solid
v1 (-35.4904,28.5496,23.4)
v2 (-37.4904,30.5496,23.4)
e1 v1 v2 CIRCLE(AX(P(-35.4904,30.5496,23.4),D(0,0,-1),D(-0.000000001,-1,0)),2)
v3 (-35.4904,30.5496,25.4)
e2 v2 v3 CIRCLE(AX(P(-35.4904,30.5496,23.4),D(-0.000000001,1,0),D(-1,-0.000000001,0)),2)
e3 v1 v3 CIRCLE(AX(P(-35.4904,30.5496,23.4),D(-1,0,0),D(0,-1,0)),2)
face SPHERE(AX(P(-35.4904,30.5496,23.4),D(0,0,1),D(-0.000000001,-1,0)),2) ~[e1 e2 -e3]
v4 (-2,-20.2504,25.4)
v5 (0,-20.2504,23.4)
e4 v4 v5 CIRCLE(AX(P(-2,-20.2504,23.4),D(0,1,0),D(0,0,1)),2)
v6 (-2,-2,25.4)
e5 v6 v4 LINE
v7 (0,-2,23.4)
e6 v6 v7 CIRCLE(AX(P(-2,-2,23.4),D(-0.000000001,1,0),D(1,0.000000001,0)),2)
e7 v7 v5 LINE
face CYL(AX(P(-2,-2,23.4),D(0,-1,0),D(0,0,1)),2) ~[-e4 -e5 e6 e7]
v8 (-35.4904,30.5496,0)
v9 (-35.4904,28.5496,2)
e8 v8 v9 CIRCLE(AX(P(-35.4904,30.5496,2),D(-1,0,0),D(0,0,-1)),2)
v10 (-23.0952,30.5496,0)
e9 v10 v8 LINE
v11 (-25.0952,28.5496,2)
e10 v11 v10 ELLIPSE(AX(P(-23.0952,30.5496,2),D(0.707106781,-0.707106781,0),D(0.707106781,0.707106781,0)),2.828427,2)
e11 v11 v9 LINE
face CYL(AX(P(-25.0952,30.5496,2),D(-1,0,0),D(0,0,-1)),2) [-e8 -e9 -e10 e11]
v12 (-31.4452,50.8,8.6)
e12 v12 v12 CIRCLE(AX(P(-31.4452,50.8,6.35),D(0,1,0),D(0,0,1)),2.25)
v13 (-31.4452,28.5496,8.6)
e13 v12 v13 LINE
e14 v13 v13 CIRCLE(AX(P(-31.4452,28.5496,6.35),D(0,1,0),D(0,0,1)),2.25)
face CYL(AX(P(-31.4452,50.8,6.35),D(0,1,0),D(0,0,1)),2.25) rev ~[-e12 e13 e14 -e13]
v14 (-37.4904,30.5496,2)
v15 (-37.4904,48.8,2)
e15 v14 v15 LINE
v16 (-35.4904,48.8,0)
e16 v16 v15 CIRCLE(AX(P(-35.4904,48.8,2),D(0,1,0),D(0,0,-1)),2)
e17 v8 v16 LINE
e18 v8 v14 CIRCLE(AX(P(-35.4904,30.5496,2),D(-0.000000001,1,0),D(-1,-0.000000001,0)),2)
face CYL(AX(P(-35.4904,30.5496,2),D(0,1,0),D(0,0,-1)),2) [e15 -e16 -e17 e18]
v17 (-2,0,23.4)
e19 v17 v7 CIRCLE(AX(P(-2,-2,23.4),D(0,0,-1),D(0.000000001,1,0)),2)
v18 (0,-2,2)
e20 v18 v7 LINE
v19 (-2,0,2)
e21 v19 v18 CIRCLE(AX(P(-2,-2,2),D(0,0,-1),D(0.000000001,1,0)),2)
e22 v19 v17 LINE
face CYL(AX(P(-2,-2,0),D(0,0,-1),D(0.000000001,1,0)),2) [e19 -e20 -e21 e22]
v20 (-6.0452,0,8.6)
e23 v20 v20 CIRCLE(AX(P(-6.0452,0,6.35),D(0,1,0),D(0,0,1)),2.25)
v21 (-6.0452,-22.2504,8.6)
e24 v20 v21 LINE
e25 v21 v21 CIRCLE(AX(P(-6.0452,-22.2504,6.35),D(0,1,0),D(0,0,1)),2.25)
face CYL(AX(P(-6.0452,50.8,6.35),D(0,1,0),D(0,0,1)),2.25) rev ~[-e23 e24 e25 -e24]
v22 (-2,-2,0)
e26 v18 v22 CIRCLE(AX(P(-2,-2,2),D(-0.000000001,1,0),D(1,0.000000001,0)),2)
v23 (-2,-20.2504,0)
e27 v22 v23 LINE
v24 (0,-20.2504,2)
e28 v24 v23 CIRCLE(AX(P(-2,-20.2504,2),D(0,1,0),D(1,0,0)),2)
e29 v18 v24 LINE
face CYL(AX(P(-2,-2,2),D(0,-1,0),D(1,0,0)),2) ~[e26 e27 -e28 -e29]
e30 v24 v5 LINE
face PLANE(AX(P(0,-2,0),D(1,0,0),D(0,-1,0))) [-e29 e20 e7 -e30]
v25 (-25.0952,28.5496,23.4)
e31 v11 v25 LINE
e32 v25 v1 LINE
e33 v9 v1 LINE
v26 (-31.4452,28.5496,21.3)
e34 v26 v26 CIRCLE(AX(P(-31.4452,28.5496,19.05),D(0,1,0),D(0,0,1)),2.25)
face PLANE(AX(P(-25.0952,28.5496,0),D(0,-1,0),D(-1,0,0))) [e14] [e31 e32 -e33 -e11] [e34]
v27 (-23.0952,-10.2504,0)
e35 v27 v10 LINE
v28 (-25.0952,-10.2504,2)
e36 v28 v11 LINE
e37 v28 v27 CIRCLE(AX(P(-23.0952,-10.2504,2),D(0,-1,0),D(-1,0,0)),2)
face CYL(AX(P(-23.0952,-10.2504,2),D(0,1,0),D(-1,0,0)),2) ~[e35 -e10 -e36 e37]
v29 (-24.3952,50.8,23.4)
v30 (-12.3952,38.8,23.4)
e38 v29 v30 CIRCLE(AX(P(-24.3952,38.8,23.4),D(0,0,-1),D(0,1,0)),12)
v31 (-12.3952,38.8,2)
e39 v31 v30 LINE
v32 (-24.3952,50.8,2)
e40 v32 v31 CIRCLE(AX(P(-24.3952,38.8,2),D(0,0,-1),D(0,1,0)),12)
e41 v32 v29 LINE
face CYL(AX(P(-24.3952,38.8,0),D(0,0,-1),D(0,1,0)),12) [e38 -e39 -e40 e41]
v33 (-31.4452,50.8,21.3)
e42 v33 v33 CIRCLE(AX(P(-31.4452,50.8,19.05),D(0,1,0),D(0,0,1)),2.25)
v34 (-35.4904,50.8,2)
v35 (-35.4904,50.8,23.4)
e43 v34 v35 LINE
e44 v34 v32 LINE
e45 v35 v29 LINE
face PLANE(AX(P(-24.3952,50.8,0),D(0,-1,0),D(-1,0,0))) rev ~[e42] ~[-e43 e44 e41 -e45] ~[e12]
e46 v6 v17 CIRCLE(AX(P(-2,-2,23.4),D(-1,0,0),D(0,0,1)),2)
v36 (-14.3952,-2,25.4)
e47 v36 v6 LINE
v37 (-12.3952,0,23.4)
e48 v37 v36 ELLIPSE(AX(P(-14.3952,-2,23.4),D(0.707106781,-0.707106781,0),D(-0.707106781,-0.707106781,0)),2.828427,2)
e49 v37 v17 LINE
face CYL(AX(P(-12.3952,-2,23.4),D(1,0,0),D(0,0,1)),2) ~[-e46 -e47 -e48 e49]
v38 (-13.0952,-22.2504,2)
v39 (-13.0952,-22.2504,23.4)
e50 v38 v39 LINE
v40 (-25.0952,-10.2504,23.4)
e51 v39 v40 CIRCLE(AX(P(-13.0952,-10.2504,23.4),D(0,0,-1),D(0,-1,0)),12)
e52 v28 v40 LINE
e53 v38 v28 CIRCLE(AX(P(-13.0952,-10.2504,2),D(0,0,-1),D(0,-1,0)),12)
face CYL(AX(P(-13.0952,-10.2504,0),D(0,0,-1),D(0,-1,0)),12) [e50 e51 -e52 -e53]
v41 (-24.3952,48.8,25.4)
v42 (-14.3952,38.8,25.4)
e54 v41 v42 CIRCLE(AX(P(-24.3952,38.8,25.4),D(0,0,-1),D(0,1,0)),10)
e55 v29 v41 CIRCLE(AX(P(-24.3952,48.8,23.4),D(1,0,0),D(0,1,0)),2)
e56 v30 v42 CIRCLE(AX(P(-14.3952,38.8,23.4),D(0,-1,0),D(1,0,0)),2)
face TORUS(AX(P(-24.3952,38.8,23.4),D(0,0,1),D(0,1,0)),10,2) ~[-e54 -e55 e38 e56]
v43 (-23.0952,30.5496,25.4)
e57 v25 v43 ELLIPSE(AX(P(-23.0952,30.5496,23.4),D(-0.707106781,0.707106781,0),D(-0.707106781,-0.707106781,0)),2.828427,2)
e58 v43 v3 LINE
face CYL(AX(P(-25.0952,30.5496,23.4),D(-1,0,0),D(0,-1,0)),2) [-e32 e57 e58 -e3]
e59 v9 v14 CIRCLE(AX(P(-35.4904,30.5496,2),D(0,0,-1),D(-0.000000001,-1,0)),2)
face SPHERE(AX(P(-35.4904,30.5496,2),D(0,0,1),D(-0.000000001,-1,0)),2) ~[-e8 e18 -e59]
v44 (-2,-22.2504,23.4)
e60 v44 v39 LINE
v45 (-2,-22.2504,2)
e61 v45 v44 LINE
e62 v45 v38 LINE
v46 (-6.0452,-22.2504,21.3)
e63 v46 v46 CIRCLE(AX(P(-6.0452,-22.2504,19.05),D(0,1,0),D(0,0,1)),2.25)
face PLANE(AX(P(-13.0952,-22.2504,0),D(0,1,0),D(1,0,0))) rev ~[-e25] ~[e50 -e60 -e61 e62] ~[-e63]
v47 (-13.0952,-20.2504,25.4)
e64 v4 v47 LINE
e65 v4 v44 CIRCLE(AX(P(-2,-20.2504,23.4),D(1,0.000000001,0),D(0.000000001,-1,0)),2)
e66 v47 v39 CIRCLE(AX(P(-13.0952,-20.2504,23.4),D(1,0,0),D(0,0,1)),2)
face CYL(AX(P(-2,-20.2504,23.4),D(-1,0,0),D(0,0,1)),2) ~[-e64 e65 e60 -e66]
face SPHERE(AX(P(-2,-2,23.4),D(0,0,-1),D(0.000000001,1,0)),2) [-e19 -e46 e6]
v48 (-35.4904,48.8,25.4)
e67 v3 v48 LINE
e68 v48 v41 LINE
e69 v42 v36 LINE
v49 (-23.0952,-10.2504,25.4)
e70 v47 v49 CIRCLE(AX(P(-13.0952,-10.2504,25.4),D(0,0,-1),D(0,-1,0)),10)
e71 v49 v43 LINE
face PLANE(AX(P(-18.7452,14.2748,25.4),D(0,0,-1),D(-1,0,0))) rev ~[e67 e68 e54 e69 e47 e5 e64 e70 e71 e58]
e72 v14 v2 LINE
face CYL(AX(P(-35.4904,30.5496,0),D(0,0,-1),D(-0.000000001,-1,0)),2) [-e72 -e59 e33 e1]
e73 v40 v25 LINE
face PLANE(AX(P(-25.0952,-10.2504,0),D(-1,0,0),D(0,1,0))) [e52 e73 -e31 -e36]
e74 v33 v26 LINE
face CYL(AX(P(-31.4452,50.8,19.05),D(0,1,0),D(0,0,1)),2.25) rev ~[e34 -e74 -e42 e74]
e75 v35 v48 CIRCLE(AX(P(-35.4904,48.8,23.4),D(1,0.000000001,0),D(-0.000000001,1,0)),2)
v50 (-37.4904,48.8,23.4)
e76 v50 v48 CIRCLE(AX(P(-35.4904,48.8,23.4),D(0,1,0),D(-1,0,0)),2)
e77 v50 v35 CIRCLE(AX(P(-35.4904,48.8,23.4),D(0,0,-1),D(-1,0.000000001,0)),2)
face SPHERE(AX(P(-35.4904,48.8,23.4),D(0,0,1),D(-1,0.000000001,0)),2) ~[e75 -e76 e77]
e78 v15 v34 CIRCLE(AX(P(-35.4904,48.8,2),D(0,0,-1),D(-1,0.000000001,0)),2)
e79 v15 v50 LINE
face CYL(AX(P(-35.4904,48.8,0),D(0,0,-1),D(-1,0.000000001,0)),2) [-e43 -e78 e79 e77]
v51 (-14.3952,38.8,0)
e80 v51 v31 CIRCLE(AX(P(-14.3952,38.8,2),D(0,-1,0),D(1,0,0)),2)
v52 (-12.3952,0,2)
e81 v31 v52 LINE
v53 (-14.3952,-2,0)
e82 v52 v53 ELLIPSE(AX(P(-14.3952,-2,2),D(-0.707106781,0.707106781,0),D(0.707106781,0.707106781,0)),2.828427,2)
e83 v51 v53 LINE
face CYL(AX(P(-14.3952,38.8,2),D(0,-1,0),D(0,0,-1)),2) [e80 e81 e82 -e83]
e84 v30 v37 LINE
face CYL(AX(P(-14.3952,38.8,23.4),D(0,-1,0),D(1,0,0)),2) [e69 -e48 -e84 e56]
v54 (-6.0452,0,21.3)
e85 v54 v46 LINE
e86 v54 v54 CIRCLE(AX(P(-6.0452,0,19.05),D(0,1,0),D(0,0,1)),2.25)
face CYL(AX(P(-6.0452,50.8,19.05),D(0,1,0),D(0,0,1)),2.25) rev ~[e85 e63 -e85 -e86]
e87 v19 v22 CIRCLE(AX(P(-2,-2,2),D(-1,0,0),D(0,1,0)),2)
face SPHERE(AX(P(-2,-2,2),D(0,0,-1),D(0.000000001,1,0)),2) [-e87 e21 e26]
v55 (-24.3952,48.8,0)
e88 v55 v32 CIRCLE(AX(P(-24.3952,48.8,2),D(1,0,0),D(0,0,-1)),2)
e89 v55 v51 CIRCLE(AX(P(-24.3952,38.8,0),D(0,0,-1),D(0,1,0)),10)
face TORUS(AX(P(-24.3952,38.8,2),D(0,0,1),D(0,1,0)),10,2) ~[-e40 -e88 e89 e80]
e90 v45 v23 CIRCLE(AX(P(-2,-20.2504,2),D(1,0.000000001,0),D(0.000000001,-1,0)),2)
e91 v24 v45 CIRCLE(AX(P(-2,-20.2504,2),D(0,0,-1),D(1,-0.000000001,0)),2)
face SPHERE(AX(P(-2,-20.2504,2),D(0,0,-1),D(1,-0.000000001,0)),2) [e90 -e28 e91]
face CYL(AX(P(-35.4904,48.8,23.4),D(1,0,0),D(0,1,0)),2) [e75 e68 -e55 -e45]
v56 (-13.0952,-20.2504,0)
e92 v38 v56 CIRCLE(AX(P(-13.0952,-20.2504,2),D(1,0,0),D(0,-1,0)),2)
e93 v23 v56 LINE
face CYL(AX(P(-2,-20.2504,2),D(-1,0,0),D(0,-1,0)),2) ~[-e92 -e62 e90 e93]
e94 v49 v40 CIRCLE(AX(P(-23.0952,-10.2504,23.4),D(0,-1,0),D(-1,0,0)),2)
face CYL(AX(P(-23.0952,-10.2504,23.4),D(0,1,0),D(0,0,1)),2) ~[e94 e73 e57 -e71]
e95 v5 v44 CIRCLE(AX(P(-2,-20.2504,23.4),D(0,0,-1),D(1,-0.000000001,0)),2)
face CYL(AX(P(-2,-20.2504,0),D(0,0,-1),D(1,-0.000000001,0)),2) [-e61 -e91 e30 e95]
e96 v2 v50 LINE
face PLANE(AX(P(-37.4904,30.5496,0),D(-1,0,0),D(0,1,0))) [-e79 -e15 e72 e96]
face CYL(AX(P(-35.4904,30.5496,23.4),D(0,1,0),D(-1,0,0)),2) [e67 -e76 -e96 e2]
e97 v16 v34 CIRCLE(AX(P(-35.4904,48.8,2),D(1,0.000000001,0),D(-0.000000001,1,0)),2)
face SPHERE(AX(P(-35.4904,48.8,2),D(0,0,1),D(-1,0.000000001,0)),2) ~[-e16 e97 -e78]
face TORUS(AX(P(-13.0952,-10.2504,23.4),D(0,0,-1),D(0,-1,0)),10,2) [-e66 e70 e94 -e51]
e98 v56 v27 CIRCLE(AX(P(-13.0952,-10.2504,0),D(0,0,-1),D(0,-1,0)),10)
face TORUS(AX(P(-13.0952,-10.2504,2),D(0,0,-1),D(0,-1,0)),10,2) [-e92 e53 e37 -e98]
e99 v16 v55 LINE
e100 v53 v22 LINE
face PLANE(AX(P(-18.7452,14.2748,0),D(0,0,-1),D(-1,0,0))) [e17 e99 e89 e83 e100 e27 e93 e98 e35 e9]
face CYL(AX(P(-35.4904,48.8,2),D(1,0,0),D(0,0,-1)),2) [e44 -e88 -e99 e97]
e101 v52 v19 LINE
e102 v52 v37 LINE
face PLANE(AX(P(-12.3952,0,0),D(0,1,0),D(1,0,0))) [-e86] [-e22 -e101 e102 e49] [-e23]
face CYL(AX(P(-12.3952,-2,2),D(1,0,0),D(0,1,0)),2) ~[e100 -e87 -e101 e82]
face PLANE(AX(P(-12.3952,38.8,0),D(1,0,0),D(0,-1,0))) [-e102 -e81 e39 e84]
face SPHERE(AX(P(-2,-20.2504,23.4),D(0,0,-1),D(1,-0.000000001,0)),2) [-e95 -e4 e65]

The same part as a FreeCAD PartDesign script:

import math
import FreeCAD as App
import Part
import Sketcher

V = App.Vector


def edges_at(feature, points):
    """Names of the edges that pass closest to the given points."""
    edges = feature.Shape.Edges
    near = lambda p: min(range(len(edges)), key=lambda i: edges[i].distToShape(Part.Vertex(*p))[0])
    return sorted({f"Edge{near(p) + 1}" for p in points})

doc = App.newDocument("Part")
body = doc.addObject("PartDesign::Body", "Body")

sketch1 = body.newObject("Sketcher::SketchObject", "Sketch")
sketch1.AttachmentSupport = (doc.getObject("XY_Plane"), [""])
sketch1.MapMode = "FlatFace"
sketch1.addGeometry([
    Part.LineSegment(V(-12.4, 0, 0), V(-12.4, 38.8, 0)),
    Part.ArcOfCircle(Part.Circle(V(-24.4, 38.8, 0), V(0, 0, 1), 12), math.radians(0), math.radians(90)),
    Part.LineSegment(V(-24.4, 50.8, 0), V(-35.5, 50.8, 0)),
    Part.ArcOfCircle(Part.Circle(V(-35.5, 48.8, 0), V(0, 0, 1), 2), math.radians(90), math.radians(180)),
    Part.LineSegment(V(-37.5, 48.8, 0), V(-37.5, 30.5, 0)),
    Part.ArcOfCircle(Part.Circle(V(-35.5, 30.5, 0), V(0, 0, 1), 2), math.radians(-180), math.radians(-90)),
    Part.LineSegment(V(-35.5, 28.5, 0), V(-25.1, 28.5, 0)),
    Part.LineSegment(V(-25.1, 28.5, 0), V(-25.1, -10.3, 0)),
    Part.ArcOfCircle(Part.Circle(V(-13.1, -10.3, 0), V(0, 0, 1), 12), math.radians(-180), math.radians(-90)),
    Part.LineSegment(V(-13.1, -22.3, 0), V(-2, -22.3, 0)),
    Part.ArcOfCircle(Part.Circle(V(-2, -20.3, 0), V(0, 0, 1), 2), math.radians(-90), math.radians(0)),
    Part.LineSegment(V(0, -20.3, 0), V(0, -2, 0)),
    Part.ArcOfCircle(Part.Circle(V(-2, -2, 0), V(0, 0, 1), 2), math.radians(0), math.radians(90)),
    Part.LineSegment(V(-2, 0, 0), V(-12.4, 0, 0)),
], False)
sketch1.addConstraint([
    Sketcher.Constraint("Tangent", 0, 2, 1, 1),
    Sketcher.Constraint("Tangent", 1, 2, 2, 1),
    Sketcher.Constraint("Tangent", 2, 2, 3, 1),
    Sketcher.Constraint("Tangent", 3, 2, 4, 1),
    Sketcher.Constraint("Tangent", 4, 2, 5, 1),
    Sketcher.Constraint("Tangent", 5, 2, 6, 1),
    Sketcher.Constraint("Coincident", 6, 2, 7, 1),
    Sketcher.Constraint("Tangent", 7, 2, 8, 1),
    Sketcher.Constraint("Tangent", 8, 2, 9, 1),
    Sketcher.Constraint("Tangent", 9, 2, 10, 1),
    Sketcher.Constraint("Tangent", 10, 2, 11, 1),
    Sketcher.Constraint("Tangent", 11, 2, 12, 1),
    Sketcher.Constraint("Tangent", 12, 2, 13, 1),
    Sketcher.Constraint("Coincident", 13, 2, 0, 1),
    Sketcher.Constraint("Vertical", 0),
    Sketcher.Constraint("Horizontal", 2),
    Sketcher.Constraint("Vertical", 4),
    Sketcher.Constraint("Horizontal", 6),
    Sketcher.Constraint("Vertical", 7),
    Sketcher.Constraint("Horizontal", 9),
    Sketcher.Constraint("Vertical", 11),
    Sketcher.Constraint("Horizontal", 13),
    Sketcher.Constraint("Equal", 3, 5),
    Sketcher.Constraint("Equal", 1, 8),
    Sketcher.Constraint("Equal", 5, 10),
    Sketcher.Constraint("Equal", 10, 12),
    Sketcher.Constraint("PointOnObject", 10, 2, -2),
    Sketcher.Constraint("PointOnObject", 12, 2, -1),
    Sketcher.Constraint("Equal", 2, 9),
    Sketcher.Constraint("Equal", 0, 7),
    Sketcher.Constraint("Radius", 1, 12.0),
    Sketcher.Constraint("Radius", 3, 2.0),
    Sketcher.Constraint("DistanceY", 0, 1, 0, 2, 38.8),
    Sketcher.Constraint("DistanceX", 1, 3, 8, 3, 11.3),
    Sketcher.Constraint("DistanceX", 2, 2, 2, 1, 11.0952),
    Sketcher.Constraint("DistanceY", 4, 2, 4, 1, 18.2504),
])
pad1 = body.newObject("PartDesign::Pad", "Pad")
pad1.Profile = sketch1
pad1.Length = 25.4

sketch2 = body.newObject("Sketcher::SketchObject", "Sketch001")
sketch2.AttachmentSupport = (doc.getObject("XZ_Plane"), [""])
sketch2.MapMode = "FlatFace"
sketch2.AttachmentOffset = App.Placement(V(0, 0, -50.8), App.Rotation())
sketch2.addGeometry([
    Part.Circle(V(-31.4, 6.3, 0), V(0, 0, 1), 2.2),
    Part.Circle(V(-31.4, 19.1, 0), V(0, 0, 1), 2.2),
    Part.Circle(V(-6, 6.3, 0), V(0, 0, 1), 2.2),
    Part.Circle(V(-6, 19.1, 0), V(0, 0, 1), 2.2),
], False)
sketch2.addConstraint([
    Sketcher.Constraint("Equal", 0, 1),
    Sketcher.Constraint("Equal", 1, 2),
    Sketcher.Constraint("Equal", 2, 3),
    Sketcher.Constraint("Horizontal", 0, 3, 2, 3),
    Sketcher.Constraint("Horizontal", 1, 3, 3, 3),
    Sketcher.Constraint("Vertical", 0, 3, 1, 3),
    Sketcher.Constraint("Vertical", 2, 3, 3, 3),
    Sketcher.Constraint("Diameter", 0, 4.5),
    Sketcher.Constraint("DistanceY", 0, 3, 1, 3, 12.7),
    Sketcher.Constraint("DistanceX", 0, 3, 2, 3, 25.4),
    Sketcher.Constraint("DistanceY", -1, 1, 0, 3, 6.35),
    Sketcher.Constraint("DistanceX", 0, 3, -1, 1, 31.4452),
])
pocket1 = body.newObject("PartDesign::Pocket", "Pocket")
pocket1.Profile = sketch2
pocket1.Type = "ThroughAll"
pocket1.Reversed = True
doc.recompute()

fillet = body.newObject("PartDesign::Fillet", "Fillet")
fillet.Base = (pocket1, edges_at(pocket1, [
    (-15.91, 47.285, 25.4),
    (-29.943, 50.8, 25.4),
    (-7.198, 0, 0),
    (-0.586, -0.586, 0),
    (0, -11.125, 0),
    (-0.586, -21.665, 0),
    (-7.548, -22.25, 0),
    (-21.58, -18.736, 0),
    (-25.095, 9.15, 0),
    (-30.293, 28.55, 0),
    (-36.905, 29.135, 0),
    (-37.49, 39.675, 0),
    (-36.905, 50.214, 0),
    (-29.943, 50.8, 0),
    (-15.91, 47.285, 0),
    (-36.905, 50.214, 25.4),
    (-12.395, 19.4, 0),
    (-37.49, 39.675, 25.4),
    (-36.905, 29.135, 25.4),
    (-30.293, 28.55, 25.4),
    (-25.095, 9.15, 25.4),
    (-21.58, -18.736, 25.4),
    (-12.395, 19.4, 25.4),
    (-7.548, -22.25, 25.4),
    (-0.586, -21.665, 25.4),
    (0, -11.125, 25.4),
    (-0.586, -0.586, 25.4),
    (-7.198, 0, 25.4),
]))
fillet.Radius = 2

doc.recompute()
